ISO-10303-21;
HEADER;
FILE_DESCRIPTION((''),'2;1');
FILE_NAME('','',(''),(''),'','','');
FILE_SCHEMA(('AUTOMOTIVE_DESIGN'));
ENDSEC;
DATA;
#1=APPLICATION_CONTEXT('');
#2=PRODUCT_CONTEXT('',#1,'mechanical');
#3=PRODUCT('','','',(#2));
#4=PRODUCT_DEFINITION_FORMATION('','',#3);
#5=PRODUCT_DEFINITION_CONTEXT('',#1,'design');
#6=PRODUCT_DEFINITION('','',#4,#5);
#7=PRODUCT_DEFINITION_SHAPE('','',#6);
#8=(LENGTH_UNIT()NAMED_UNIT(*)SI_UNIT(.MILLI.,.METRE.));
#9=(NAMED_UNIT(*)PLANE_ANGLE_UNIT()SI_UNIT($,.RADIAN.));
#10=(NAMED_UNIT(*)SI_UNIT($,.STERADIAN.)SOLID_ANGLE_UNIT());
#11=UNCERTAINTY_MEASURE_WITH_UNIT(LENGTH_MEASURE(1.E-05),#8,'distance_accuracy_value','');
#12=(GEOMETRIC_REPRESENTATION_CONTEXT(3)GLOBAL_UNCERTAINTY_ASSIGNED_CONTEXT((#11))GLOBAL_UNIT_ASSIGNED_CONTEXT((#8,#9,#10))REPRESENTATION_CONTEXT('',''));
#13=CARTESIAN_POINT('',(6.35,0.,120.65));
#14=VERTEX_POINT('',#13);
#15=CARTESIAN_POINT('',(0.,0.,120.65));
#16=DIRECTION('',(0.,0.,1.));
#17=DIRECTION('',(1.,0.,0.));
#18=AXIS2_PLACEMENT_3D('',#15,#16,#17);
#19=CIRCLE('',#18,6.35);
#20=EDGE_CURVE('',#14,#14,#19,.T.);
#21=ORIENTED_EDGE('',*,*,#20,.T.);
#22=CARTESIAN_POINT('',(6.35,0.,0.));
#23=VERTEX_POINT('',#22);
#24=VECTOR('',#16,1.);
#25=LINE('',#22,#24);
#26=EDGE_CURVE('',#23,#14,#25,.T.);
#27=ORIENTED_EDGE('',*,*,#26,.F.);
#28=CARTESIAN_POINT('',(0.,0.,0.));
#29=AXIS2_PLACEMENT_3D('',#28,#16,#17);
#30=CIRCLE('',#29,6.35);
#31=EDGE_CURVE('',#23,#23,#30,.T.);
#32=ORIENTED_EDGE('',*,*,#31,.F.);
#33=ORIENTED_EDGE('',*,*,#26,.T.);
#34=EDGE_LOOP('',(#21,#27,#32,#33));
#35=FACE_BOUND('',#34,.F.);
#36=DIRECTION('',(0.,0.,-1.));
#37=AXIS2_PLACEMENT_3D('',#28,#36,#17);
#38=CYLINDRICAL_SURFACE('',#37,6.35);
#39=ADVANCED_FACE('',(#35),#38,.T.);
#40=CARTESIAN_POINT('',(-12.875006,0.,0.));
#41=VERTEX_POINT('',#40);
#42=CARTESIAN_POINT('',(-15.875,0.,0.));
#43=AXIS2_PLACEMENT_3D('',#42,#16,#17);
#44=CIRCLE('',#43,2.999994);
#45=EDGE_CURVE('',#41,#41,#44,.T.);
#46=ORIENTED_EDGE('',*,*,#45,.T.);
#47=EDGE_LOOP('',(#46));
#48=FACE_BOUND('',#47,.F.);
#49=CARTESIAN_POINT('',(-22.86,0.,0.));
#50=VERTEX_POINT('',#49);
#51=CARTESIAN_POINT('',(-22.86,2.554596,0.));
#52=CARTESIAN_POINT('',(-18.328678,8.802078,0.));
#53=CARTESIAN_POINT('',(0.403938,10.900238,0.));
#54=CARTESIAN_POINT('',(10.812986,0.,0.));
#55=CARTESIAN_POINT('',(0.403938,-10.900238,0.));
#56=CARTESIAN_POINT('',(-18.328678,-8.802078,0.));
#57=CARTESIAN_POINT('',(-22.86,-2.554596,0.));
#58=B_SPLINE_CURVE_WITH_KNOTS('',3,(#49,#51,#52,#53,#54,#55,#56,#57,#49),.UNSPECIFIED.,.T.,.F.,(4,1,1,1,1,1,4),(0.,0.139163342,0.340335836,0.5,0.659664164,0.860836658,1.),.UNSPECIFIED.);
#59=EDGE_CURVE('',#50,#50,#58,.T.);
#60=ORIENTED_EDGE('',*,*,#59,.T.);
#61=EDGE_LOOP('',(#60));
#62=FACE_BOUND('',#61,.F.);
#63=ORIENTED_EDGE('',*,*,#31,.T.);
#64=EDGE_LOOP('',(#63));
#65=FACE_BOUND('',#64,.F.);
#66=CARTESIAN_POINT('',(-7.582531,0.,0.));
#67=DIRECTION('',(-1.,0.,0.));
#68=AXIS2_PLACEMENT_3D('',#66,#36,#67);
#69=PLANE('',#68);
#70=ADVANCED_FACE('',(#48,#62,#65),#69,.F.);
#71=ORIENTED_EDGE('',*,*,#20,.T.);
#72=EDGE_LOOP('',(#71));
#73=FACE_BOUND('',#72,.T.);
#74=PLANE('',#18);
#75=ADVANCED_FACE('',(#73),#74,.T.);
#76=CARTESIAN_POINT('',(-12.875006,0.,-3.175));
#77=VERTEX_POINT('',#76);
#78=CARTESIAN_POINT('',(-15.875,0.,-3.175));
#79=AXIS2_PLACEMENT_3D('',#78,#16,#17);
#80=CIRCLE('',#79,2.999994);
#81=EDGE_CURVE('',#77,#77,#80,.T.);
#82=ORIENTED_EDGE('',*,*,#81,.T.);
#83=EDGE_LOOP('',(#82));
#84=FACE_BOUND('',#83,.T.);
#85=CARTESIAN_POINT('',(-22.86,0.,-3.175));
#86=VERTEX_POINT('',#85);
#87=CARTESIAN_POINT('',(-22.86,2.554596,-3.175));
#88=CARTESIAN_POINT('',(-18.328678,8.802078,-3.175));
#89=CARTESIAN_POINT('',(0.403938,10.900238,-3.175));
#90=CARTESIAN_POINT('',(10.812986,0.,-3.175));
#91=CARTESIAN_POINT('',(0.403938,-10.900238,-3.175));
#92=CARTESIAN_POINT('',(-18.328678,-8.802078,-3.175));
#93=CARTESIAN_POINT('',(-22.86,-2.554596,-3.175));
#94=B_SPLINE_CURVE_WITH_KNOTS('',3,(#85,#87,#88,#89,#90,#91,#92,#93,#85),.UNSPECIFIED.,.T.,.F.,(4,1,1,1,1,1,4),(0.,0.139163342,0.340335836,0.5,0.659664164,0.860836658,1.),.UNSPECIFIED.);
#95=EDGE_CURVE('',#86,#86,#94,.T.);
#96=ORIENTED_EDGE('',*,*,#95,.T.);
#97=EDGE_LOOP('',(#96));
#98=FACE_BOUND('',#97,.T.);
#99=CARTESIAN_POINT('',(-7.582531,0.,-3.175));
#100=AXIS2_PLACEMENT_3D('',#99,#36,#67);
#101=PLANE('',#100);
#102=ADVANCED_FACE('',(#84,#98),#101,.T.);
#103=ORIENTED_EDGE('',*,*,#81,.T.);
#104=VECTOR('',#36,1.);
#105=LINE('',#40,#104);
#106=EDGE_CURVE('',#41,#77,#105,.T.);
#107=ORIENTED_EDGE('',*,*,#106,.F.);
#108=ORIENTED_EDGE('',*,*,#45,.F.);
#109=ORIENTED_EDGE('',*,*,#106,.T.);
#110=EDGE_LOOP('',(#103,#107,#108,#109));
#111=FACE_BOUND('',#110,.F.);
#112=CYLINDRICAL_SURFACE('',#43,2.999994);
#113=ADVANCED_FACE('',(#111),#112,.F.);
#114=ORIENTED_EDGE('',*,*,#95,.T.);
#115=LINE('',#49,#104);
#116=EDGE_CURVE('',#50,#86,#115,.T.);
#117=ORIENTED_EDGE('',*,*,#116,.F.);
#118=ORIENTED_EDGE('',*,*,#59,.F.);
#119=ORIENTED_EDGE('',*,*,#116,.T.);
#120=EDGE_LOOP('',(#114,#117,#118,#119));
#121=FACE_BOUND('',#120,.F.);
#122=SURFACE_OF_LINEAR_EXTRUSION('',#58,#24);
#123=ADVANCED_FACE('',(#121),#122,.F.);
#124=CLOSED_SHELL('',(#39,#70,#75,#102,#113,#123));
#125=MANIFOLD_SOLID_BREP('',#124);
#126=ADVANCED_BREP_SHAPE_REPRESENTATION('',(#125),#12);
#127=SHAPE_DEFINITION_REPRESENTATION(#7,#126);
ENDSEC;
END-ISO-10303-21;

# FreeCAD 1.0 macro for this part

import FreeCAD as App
import Part
import Sketcher
Q = App.Units.Quantity

doc = App.newDocument("Part")
params = doc.addObject("Spreadsheet::Sheet", "Params")
for row, (alias, value) in enumerate([
    ("sketch1_diameter", "0.5 in"),
    ("pad1_length", "4.75 in"),
    ("pad2_length", "0.125 in"),
], start=1):
    params.set(f"A{row}", alias)
    params.set(f"B{row}", "=" + value)
    params.setAlias(f"B{row}", alias)

body = doc.addObject("PartDesign::Body", "Body")

sketch1 = body.newObject("Sketcher::SketchObject", "Sketch")
sketch1.AttachmentSupport = (doc.getObject("XY_Plane"), [""])
sketch1.MapMode = "FlatFace"
sketch1.addGeometry(Part.Circle(App.Vector(0, 0, 0), App.Vector(0, 0, 1), 6.35), False)
sketch1.addConstraint([
    Sketcher.Constraint("Coincident", 0, 3, -1, 1),
    Sketcher.Constraint("Diameter", 0, Q("0.5 in")),
])
sketch1.setExpression("Constraints[1]", "Params.sketch1_diameter")
pad1 = body.newObject("PartDesign::Pad", "Pad")
pad1.Profile = sketch1
pad1.setExpression("Length", "Params.pad1_length")

sketch2 = body.newObject("Sketcher::SketchObject", "Sketch001")
sketch2.AttachmentSupport = (doc.getObject("XY_Plane"), [""])
sketch2.MapMode = "FlatFace"
sketch2.addGeometry([
    Part.BSplineCurve([App.Vector(-22.86, 0, 0), App.Vector(-22.86, 2.554596, 0), App.Vector(-18.328678, 8.802078, 0), App.Vector(0.403938, 10.900238, 0), App.Vector(10.812986, 0, 0), App.Vector(0.403938, -10.900238, 0), App.Vector(-18.328678, -8.802078, 0), App.Vector(-22.86, -2.554596, 0), App.Vector(-22.86, 0, 0)], [4, 1, 1, 1, 1, 1, 4], [0, 0.139163342, 0.340335836, 0.5, 0.659664164, 0.860836658, 1], False, 3, [1, 1, 1, 1, 1, 1, 1, 1, 1], False),
    Part.Circle(App.Vector(-15.875, 0, 0), App.Vector(0, 0, 1), 2.999994),
], False)
sketch2.addConstraint([
    Sketcher.Constraint("Block", 0),
    Sketcher.Constraint("PointOnObject", 1, 3, -1),
    Sketcher.Constraint("DistanceX", 1, 3, -1, 1, Q("0.625 in")),
    Sketcher.Constraint("Diameter", 1, 5.999988),
])
pad2 = body.newObject("PartDesign::Pad", "Pad001")
pad2.Profile = sketch2
pad2.setExpression("Length", "Params.pad2_length")
pad2.Reversed = True

doc.recompute()
